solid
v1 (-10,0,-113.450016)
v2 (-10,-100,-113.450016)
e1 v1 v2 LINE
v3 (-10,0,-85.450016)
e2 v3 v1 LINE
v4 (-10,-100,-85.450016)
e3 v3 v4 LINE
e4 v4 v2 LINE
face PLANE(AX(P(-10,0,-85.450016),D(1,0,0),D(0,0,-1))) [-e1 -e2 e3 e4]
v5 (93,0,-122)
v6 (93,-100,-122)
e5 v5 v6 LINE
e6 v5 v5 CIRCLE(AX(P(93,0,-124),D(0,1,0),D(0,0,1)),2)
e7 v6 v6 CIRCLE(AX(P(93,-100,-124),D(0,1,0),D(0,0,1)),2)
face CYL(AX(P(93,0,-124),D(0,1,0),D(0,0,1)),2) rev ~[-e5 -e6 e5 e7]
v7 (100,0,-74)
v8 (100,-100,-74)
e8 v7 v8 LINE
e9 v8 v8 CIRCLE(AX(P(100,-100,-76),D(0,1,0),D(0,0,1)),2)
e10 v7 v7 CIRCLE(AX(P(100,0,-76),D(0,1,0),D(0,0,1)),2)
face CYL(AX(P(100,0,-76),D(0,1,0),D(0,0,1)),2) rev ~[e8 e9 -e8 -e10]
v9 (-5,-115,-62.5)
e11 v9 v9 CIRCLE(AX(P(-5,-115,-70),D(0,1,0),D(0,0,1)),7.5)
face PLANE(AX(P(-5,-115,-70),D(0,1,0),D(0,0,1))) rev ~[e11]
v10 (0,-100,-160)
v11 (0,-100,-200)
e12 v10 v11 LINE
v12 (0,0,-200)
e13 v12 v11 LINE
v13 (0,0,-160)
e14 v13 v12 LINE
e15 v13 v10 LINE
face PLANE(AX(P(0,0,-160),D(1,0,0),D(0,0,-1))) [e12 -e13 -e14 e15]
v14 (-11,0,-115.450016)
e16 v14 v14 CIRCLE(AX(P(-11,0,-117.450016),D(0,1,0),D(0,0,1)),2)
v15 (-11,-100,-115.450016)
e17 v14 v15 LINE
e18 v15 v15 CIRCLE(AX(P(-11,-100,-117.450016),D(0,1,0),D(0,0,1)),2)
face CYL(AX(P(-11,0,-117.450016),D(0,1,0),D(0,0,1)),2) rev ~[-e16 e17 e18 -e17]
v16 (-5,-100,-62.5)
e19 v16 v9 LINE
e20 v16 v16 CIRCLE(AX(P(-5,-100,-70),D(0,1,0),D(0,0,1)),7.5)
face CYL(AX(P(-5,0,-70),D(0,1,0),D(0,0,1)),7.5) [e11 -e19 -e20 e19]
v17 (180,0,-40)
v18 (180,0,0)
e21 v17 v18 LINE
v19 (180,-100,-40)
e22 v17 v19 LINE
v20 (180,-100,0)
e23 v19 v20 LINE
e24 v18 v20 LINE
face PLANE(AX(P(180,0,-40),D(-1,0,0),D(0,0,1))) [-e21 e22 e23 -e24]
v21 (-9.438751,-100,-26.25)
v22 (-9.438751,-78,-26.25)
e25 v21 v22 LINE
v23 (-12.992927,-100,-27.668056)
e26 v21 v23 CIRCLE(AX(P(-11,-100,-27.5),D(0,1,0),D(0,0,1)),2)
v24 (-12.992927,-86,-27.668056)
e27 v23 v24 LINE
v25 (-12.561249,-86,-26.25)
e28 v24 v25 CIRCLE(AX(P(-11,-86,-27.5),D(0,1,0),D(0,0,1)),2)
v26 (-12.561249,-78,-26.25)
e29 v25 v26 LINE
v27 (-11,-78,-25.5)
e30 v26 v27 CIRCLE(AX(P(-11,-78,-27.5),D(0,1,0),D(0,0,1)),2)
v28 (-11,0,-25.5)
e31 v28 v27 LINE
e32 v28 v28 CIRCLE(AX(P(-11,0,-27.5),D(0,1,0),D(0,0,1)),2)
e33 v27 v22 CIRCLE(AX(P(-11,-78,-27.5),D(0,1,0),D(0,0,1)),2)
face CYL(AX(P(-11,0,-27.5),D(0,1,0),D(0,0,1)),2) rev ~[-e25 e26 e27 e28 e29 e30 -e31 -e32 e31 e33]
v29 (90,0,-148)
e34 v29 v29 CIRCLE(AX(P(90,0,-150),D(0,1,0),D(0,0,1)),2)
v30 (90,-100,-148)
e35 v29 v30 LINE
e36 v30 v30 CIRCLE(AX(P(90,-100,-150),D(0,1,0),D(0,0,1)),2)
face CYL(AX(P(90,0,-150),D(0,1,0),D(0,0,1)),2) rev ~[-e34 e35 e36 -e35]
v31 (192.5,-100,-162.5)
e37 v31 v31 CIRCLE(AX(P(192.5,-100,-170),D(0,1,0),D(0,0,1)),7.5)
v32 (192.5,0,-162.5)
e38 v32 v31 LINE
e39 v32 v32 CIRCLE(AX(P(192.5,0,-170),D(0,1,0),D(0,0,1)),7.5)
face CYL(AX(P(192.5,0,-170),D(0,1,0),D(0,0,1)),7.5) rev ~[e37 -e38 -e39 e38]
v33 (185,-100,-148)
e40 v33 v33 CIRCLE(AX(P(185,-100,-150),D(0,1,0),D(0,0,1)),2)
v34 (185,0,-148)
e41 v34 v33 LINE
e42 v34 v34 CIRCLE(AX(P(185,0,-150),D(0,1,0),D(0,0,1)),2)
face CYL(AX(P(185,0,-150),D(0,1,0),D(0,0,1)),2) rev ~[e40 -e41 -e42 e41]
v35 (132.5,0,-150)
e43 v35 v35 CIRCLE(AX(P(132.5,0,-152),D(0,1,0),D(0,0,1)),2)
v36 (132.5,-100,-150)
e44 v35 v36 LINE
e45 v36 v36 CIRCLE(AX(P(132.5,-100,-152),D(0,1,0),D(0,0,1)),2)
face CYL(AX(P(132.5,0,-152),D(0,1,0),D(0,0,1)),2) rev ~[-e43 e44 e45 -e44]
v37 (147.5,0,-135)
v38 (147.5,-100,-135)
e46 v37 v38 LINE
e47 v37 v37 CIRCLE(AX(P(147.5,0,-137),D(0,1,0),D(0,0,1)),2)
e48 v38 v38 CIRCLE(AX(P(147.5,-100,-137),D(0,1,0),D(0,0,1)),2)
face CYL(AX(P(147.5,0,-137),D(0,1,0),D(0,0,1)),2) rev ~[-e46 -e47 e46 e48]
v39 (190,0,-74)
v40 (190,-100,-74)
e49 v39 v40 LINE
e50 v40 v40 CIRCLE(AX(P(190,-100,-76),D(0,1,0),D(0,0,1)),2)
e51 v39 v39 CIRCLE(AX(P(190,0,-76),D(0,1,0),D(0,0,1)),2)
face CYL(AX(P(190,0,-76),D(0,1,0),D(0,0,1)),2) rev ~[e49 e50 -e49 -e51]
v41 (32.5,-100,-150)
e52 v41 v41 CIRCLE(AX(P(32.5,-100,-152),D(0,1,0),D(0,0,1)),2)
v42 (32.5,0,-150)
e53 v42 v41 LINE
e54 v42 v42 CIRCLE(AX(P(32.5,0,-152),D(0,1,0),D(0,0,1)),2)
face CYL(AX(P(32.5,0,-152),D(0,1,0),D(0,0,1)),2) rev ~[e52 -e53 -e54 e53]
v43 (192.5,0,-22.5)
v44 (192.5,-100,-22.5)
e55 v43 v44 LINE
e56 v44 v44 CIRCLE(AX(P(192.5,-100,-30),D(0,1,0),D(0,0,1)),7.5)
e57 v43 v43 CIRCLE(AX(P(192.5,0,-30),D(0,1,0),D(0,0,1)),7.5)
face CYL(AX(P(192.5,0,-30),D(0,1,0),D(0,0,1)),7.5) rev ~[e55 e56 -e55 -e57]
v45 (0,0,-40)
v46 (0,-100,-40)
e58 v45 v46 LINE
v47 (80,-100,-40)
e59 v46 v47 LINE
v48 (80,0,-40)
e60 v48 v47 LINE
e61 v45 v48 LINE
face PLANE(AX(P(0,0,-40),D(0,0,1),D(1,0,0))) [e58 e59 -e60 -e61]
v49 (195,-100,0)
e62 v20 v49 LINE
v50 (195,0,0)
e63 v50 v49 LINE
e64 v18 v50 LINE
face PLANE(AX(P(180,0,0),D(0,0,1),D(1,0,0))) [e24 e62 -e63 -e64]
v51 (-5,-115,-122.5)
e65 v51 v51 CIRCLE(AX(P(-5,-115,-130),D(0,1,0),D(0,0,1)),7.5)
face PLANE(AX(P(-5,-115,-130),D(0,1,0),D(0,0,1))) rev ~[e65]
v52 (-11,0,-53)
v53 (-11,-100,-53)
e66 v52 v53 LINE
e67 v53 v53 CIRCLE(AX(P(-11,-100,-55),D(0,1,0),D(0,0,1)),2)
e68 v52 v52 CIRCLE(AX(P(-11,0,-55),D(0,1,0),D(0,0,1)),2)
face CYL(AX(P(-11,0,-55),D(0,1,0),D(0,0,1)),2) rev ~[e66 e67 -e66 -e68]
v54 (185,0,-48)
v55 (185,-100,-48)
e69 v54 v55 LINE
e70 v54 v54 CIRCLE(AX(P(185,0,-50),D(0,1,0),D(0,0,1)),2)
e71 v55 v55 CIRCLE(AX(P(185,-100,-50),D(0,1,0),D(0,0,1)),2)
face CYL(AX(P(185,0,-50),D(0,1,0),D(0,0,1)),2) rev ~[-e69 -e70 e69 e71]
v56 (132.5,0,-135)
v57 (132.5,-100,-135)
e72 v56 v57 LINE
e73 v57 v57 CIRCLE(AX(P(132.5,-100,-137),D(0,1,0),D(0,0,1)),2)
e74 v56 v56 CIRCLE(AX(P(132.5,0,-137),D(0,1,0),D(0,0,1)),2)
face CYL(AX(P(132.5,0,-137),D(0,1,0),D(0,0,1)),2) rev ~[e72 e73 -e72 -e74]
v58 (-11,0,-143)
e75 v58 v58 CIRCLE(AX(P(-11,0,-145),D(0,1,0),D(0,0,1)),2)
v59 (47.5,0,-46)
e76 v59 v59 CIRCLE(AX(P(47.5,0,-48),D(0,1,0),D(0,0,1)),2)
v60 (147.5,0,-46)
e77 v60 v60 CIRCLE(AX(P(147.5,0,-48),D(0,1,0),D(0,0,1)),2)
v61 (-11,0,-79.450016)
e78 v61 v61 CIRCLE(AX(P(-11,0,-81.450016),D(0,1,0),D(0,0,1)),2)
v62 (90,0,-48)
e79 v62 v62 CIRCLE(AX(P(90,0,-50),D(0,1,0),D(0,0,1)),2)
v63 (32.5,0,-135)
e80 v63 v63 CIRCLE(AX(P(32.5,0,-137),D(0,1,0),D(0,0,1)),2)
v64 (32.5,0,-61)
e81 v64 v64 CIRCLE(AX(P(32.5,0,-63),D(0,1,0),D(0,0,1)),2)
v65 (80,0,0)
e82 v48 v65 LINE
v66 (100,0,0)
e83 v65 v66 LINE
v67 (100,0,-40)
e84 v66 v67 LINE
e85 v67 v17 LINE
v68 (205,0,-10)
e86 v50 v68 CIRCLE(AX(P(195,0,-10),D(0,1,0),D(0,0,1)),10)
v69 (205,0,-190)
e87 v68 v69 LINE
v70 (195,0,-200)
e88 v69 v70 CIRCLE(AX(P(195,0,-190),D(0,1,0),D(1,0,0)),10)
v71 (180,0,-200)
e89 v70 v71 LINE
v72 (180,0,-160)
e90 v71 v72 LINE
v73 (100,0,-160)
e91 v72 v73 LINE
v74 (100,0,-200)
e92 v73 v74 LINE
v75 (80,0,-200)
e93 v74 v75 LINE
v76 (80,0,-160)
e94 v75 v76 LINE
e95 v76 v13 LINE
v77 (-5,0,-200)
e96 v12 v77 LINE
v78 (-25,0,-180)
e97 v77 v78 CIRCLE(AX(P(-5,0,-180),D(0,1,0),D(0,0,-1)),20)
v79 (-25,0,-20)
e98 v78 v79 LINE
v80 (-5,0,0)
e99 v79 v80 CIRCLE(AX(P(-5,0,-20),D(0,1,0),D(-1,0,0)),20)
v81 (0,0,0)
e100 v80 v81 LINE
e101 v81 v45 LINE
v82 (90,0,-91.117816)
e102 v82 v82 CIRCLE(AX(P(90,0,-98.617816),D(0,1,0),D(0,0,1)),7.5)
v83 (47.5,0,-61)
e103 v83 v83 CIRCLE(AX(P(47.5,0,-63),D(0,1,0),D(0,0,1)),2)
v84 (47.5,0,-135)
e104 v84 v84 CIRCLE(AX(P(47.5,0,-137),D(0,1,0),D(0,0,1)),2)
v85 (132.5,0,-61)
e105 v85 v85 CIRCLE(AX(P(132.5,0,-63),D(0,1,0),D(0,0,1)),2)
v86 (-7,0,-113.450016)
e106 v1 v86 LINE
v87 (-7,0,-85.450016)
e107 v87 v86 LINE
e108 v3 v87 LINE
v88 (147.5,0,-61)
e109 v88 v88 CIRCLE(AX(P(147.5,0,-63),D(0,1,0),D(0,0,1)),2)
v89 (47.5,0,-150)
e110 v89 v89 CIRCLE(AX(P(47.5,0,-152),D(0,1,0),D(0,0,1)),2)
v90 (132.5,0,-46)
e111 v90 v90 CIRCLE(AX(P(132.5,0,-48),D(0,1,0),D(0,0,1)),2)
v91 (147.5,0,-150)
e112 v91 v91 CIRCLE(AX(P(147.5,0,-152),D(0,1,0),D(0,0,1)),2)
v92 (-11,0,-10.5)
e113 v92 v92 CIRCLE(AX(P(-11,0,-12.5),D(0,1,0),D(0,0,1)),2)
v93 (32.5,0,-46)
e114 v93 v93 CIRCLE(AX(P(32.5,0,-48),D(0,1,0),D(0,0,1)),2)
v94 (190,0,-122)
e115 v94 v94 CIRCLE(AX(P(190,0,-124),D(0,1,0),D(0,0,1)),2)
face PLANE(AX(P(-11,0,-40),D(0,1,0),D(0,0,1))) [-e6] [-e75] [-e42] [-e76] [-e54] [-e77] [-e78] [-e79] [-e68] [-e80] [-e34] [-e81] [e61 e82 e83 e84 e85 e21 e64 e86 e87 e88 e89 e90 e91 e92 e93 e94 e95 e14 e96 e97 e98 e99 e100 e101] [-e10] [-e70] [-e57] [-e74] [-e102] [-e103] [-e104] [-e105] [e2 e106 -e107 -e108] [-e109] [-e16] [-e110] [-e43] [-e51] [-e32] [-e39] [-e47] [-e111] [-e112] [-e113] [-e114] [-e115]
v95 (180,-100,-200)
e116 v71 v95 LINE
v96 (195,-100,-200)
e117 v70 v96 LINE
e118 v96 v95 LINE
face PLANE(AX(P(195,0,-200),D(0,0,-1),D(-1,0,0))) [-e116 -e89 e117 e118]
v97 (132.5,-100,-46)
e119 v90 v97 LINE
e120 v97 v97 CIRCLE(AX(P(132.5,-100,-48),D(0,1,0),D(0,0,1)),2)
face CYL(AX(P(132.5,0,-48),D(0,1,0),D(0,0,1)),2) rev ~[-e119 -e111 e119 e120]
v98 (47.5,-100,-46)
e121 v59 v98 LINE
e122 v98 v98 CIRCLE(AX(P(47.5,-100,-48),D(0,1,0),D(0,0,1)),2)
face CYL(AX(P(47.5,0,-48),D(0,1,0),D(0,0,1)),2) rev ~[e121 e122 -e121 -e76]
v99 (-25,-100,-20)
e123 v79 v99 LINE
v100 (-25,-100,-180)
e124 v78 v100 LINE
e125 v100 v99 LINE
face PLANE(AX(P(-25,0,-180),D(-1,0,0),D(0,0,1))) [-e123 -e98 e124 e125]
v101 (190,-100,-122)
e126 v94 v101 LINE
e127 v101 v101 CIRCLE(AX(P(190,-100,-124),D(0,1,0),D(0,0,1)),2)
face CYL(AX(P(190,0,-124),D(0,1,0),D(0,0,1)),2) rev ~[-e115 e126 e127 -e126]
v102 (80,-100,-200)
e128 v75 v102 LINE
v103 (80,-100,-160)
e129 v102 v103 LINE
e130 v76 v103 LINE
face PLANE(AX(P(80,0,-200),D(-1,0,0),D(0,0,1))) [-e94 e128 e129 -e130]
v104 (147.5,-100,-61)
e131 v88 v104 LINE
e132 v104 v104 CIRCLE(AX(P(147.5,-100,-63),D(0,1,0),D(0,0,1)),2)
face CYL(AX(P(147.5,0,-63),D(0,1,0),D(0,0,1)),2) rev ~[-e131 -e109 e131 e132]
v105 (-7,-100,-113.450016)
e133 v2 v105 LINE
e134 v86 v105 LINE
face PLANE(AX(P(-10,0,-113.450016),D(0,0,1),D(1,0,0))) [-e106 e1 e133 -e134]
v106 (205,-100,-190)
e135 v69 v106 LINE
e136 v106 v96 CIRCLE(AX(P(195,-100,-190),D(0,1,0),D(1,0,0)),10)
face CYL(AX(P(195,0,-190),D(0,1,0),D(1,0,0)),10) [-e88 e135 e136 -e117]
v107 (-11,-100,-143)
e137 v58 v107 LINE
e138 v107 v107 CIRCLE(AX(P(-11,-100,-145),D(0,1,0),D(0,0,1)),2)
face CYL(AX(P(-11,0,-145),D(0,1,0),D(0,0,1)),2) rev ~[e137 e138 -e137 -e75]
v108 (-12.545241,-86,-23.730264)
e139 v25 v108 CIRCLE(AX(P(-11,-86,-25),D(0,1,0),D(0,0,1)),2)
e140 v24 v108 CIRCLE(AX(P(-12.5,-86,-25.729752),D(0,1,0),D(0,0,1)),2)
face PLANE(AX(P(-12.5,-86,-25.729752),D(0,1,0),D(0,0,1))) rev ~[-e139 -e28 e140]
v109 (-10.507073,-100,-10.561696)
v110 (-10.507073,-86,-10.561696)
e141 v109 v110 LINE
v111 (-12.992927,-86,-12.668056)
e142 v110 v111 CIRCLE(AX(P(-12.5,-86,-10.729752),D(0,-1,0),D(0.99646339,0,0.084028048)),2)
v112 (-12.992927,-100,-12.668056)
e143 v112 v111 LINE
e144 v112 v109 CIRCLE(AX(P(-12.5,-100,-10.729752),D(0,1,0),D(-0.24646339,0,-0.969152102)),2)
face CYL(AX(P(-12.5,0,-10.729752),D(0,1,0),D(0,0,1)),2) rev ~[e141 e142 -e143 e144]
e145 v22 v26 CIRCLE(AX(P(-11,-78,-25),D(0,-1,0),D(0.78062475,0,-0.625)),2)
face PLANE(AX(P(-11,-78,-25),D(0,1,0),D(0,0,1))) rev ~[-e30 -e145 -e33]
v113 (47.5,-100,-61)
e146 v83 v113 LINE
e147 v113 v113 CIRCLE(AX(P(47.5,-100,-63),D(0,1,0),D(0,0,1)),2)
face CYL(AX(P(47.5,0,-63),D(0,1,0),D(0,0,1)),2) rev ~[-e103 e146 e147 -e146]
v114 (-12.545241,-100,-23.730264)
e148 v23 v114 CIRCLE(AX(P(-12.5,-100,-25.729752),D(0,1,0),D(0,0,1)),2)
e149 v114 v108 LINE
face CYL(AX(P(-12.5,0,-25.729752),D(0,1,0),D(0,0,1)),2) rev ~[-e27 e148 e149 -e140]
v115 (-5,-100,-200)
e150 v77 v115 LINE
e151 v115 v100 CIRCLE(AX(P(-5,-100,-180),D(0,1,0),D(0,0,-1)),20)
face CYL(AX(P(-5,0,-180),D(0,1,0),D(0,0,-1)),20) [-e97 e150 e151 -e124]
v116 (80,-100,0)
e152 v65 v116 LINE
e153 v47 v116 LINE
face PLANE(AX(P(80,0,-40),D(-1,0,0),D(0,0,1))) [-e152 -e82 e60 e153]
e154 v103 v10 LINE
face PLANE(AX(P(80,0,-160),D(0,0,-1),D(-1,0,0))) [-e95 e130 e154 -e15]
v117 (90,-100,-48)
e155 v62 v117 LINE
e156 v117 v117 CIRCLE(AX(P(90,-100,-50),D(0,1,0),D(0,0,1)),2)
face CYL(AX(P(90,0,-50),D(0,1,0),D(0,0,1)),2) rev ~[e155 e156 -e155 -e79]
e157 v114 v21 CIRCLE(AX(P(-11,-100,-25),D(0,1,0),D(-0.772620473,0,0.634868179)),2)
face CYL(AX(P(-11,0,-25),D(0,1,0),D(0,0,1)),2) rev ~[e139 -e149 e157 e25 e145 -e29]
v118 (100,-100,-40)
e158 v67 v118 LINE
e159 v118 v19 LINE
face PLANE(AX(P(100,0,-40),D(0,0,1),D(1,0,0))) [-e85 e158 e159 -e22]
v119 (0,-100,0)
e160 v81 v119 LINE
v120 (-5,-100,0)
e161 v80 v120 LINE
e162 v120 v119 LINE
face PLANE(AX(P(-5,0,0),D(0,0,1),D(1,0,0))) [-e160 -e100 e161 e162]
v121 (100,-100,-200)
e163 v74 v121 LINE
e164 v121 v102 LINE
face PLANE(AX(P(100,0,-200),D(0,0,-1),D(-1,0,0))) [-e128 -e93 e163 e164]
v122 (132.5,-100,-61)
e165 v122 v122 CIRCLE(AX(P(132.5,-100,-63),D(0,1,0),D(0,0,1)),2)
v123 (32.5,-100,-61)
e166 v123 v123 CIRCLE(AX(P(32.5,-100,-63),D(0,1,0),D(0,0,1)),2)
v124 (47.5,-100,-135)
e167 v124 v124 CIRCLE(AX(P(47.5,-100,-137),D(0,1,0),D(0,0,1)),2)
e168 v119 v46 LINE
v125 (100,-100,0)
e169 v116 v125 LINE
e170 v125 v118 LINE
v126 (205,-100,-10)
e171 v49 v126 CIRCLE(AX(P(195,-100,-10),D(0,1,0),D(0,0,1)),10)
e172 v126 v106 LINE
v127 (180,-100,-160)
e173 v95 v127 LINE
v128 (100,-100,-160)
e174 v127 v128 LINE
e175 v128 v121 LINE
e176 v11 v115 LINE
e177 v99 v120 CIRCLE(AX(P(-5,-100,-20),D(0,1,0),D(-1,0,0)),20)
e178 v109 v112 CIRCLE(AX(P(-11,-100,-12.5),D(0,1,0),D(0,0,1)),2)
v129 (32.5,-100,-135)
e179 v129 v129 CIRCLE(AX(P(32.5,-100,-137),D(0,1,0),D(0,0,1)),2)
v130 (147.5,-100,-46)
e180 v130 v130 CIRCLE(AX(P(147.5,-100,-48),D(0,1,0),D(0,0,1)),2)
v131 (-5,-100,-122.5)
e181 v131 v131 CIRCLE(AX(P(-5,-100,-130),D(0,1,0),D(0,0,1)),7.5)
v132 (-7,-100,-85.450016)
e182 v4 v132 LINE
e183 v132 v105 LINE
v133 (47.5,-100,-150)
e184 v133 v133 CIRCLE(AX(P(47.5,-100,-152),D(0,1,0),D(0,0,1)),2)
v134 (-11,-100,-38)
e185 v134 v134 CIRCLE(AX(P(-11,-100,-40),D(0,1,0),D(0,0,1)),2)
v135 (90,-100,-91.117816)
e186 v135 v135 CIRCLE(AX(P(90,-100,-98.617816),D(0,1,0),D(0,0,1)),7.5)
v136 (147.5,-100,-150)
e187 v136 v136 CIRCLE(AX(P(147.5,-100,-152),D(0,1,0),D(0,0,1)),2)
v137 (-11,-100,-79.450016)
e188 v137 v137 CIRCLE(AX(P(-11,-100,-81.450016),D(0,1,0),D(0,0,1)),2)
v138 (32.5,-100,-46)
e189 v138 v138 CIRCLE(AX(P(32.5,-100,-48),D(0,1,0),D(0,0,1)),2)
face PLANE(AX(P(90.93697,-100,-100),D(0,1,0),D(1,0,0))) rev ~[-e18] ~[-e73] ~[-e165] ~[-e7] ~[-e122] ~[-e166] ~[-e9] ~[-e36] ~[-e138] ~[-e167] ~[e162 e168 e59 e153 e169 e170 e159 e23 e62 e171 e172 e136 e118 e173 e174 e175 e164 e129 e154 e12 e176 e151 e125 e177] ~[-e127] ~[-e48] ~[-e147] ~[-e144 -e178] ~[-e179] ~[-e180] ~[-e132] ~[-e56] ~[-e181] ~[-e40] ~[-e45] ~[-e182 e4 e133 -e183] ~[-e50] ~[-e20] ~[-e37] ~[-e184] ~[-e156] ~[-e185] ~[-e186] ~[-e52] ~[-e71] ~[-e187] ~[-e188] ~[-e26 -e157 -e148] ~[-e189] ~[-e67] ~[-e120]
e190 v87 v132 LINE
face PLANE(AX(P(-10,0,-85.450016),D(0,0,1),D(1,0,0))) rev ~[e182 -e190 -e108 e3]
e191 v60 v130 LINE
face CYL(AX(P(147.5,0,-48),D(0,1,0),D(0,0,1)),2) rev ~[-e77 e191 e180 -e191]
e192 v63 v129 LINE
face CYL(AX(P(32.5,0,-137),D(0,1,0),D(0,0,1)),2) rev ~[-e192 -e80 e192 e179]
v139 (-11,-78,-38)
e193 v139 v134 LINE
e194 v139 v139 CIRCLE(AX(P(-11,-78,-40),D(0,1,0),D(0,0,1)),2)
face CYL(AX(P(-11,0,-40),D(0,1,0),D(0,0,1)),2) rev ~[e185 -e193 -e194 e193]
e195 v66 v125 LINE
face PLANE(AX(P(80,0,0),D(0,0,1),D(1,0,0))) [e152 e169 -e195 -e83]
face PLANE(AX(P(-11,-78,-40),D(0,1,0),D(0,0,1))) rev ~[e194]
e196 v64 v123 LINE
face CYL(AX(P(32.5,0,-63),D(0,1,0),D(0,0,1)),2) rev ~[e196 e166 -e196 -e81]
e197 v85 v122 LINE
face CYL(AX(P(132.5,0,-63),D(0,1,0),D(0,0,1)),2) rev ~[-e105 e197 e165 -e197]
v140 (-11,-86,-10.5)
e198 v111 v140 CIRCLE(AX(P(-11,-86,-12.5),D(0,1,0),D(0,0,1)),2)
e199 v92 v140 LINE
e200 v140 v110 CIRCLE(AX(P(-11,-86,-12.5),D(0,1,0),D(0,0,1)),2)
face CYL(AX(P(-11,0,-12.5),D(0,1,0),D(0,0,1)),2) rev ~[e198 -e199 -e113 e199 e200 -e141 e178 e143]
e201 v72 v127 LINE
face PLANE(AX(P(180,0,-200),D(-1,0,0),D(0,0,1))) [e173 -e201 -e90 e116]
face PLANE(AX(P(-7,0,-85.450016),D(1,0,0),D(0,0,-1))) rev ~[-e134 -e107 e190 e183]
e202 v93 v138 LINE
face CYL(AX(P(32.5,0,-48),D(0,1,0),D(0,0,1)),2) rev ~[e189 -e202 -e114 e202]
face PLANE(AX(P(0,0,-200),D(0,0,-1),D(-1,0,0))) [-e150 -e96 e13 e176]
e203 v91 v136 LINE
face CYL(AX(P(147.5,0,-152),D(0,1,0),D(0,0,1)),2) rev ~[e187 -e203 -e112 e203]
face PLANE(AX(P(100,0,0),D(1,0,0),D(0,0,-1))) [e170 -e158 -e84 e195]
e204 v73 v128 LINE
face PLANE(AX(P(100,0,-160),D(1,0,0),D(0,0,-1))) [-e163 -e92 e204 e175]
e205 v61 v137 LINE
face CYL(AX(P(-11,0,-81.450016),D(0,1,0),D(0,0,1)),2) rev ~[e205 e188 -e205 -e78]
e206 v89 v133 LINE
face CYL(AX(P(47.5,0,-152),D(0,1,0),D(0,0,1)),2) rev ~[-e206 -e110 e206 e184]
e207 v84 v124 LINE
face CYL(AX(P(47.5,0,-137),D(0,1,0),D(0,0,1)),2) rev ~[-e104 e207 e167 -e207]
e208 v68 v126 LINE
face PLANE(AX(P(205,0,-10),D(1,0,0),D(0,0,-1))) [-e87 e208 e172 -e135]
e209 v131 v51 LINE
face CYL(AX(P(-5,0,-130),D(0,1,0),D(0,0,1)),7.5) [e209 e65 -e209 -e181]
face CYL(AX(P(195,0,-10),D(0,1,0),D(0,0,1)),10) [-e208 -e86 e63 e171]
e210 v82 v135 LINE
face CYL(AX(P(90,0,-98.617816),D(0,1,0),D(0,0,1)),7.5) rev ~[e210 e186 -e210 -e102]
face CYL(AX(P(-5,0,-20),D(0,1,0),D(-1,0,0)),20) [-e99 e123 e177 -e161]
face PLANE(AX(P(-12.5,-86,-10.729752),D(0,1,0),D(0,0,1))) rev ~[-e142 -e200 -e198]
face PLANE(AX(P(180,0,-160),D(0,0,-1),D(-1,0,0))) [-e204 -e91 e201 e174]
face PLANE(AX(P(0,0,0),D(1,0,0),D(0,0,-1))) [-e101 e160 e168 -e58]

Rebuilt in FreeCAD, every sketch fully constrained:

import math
import FreeCAD as App
import Part
import Sketcher

V = App.Vector
Q = App.Units.Quantity

doc = App.newDocument("Part")
body = doc.addObject("PartDesign::Body", "Body")

# Sketch on XZ plane
sketch1 = body.newObject("Sketcher::SketchObject", "Sketch")
sketch1.AttachmentSupport = (doc.getObject("XZ_Plane"), [""])
sketch1.MapMode = "FlatFace"
sketch1.addGeometry(Part.LineSegment(V(0, 0, 0), V(0, -40, 0)), False)
sketch1.addGeometry(Part.LineSegment(V(0, -40, 0), V(80, -40, 0)), False)
sketch1.addGeometry(Part.LineSegment(V(80, -40, 0), V(80, 0, 0)), False)
sketch1.addGeometry(Part.LineSegment(V(80, 0, 0), V(100, 0, 0)), False)
sketch1.addGeometry(Part.LineSegment(V(100, 0, 0), V(100, -40, 0)), False)
sketch1.addGeometry(Part.LineSegment(V(100, -40, 0), V(180, -40, 0)), False)
sketch1.addGeometry(Part.LineSegment(V(180, -40, 0), V(180, 0, 0)), False)
sketch1.addGeometry(Part.LineSegment(V(180, 0, 0), V(195, 0, 0)), False)
sketch1.addGeometry(Part.ArcOfCircle(Part.Circle(V(195, -10, 0), V(0, 0, 1), 10), math.radians(0), math.radians(90)), False)
sketch1.addGeometry(Part.LineSegment(V(205, -10, 0), V(205, -190, 0)), False)
sketch1.addGeometry(Part.ArcOfCircle(Part.Circle(V(195, -190, 0), V(0, 0, 1), 10), math.radians(-90), math.radians(0)), False)
sketch1.addGeometry(Part.LineSegment(V(195, -200, 0), V(180, -200, 0)), False)
sketch1.addGeometry(Part.LineSegment(V(180, -200, 0), V(180, -160, 0)), False)
sketch1.addGeometry(Part.LineSegment(V(180, -160, 0), V(100, -160, 0)), False)
sketch1.addGeometry(Part.LineSegment(V(100, -160, 0), V(100, -200, 0)), False)
sketch1.addGeometry(Part.LineSegment(V(100, -200, 0), V(80, -200, 0)), False)
sketch1.addGeometry(Part.LineSegment(V(80, -200, 0), V(80, -160, 0)), False)
sketch1.addGeometry(Part.LineSegment(V(80, -160, 0), V(0, -160, 0)), False)
sketch1.addGeometry(Part.LineSegment(V(0, -160, 0), V(0, -200, 0)), False)
sketch1.addGeometry(Part.LineSegment(V(0, -200, 0), V(-5, -200, 0)), False)
sketch1.addGeometry(Part.ArcOfCircle(Part.Circle(V(-5, -180, 0), V(0, 0, 1), 20), math.radians(180), math.radians(270)), False)
sketch1.addGeometry(Part.LineSegment(V(-25, -180, 0), V(-25, -20, 0)), False)
sketch1.addGeometry(Part.ArcOfCircle(Part.Circle(V(-5, -20, 0), V(0, 0, 1), 20), math.radians(90), math.radians(180)), False)
sketch1.addGeometry(Part.LineSegment(V(-5, 0, 0), V(0, 0, 0)), False)
sketch1.addGeometry(Part.Circle(V(32.5, -48, 0), V(0, 0, 1), 2), False)
sketch1.addGeometry(Part.Circle(V(47.5, -48, 0), V(0, 0, 1), 2), False)
sketch1.addGeometry(Part.Circle(V(90, -50, 0), V(0, 0, 1), 2), False)
sketch1.addGeometry(Part.Circle(V(-5, -70, 0), V(0, 0, 1), 7.5), False)
sketch1.addGeometry(Part.Circle(V(32.5, -63, 0), V(0, 0, 1), 2), False)
sketch1.addGeometry(Part.LineSegment(V(-7, -85.5, 0), V(-10, -85.5, 0)), False)
sketch1.addGeometry(Part.LineSegment(V(-10, -85.5, 0), V(-10, -113.5, 0)), False)
sketch1.addGeometry(Part.LineSegment(V(-10, -113.5, 0), V(-7, -113.5, 0)), False)
sketch1.addGeometry(Part.LineSegment(V(-7, -113.5, 0), V(-7, -85.5, 0)), False)
sketch1.addGeometry(Part.Circle(V(47.5, -63, 0), V(0, 0, 1), 2), False)
sketch1.addGeometry(Part.Circle(V(90, -98.6, 0), V(0, 0, 1), 7.5), False)
sketch1.addGeometry(Part.Circle(V(132.5, -48, 0), V(0, 0, 1), 2), False)
sketch1.addGeometry(Part.Circle(V(192.5, -30, 0), V(0, 0, 1), 7.5), False)
sketch1.addGeometry(Part.Circle(V(147.5, -48, 0), V(0, 0, 1), 2), False)
sketch1.addGeometry(Part.Circle(V(185, -50, 0), V(0, 0, 1), 2), False)
sketch1.addGeometry(Part.Circle(V(132.5, -63, 0), V(0, 0, 1), 2), False)
sketch1.addGeometry(Part.Circle(V(147.5, -63, 0), V(0, 0, 1), 2), False)
sketch1.addGeometry(Part.Circle(V(-5, -130, 0), V(0, 0, 1), 7.5), False)
sketch1.addGeometry(Part.Circle(V(32.5, -137, 0), V(0, 0, 1), 2), False)
sketch1.addGeometry(Part.Circle(V(47.5, -137, 0), V(0, 0, 1), 2), False)
sketch1.addGeometry(Part.Circle(V(32.5, -152, 0), V(0, 0, 1), 2), False)
sketch1.addGeometry(Part.Circle(V(47.5, -152, 0), V(0, 0, 1), 2), False)
sketch1.addGeometry(Part.Circle(V(90, -150, 0), V(0, 0, 1), 2), False)
sketch1.addGeometry(Part.Circle(V(132.5, -137, 0), V(0, 0, 1), 2), False)
sketch1.addGeometry(Part.Circle(V(147.5, -137, 0), V(0, 0, 1), 2), False)
sketch1.addGeometry(Part.Circle(V(132.5, -152, 0), V(0, 0, 1), 2), False)
sketch1.addGeometry(Part.Circle(V(147.5, -152, 0), V(0, 0, 1), 2), False)
sketch1.addGeometry(Part.Circle(V(185, -150, 0), V(0, 0, 1), 2), False)
sketch1.addGeometry(Part.Circle(V(192.5, -170, 0), V(0, 0, 1), 7.5), False)
sketch1.addConstraint(Sketcher.Constraint("Coincident", 0, 2, 1, 1))
sketch1.addConstraint(Sketcher.Constraint("Coincident", 1, 2, 2, 1))
sketch1.addConstraint(Sketcher.Constraint("Coincident", 2, 2, 3, 1))
sketch1.addConstraint(Sketcher.Constraint("Coincident", 3, 2, 4, 1))
sketch1.addConstraint(Sketcher.Constraint("Coincident", 4, 2, 5, 1))
sketch1.addConstraint(Sketcher.Constraint("Coincident", 5, 2, 6, 1))
sketch1.addConstraint(Sketcher.Constraint("Coincident", 6, 2, 7, 1))
sketch1.addConstraint(Sketcher.Constraint("Tangent", 7, 2, 8, 2))
sketch1.addConstraint(Sketcher.Constraint("Tangent", 8, 1, 9, 1))
sketch1.addConstraint(Sketcher.Constraint("Tangent", 9, 2, 10, 2))
sketch1.addConstraint(Sketcher.Constraint("Tangent", 10, 1, 11, 1))
sketch1.addConstraint(Sketcher.Constraint("Coincident", 11, 2, 12, 1))
sketch1.addConstraint(Sketcher.Constraint("Coincident", 12, 2, 13, 1))
sketch1.addConstraint(Sketcher.Constraint("Coincident", 13, 2, 14, 1))
sketch1.addConstraint(Sketcher.Constraint("Coincident", 14, 2, 15, 1))
sketch1.addConstraint(Sketcher.Constraint("Coincident", 15, 2, 16, 1))
sketch1.addConstraint(Sketcher.Constraint("Coincident", 16, 2, 17, 1))
sketch1.addConstraint(Sketcher.Constraint("Coincident", 17, 2, 18, 1))
sketch1.addConstraint(Sketcher.Constraint("Coincident", 18, 2, 19, 1))
sketch1.addConstraint(Sketcher.Constraint("Tangent", 19, 2, 20, 2))
sketch1.addConstraint(Sketcher.Constraint("Tangent", 20, 1, 21, 1))
sketch1.addConstraint(Sketcher.Constraint("Tangent", 21, 2, 22, 2))
sketch1.addConstraint(Sketcher.Constraint("Tangent", 22, 1, 23, 1))
sketch1.addConstraint(Sketcher.Constraint("Coincident", 23, 2, 0, 1))
sketch1.addConstraint(Sketcher.Constraint("Coincident", 29, 2, 30, 1))
sketch1.addConstraint(Sketcher.Constraint("Coincident", 30, 2, 31, 1))
sketch1.addConstraint(Sketcher.Constraint("Coincident", 31, 2, 32, 1))
sketch1.addConstraint(Sketcher.Constraint("Coincident", 32, 2, 29, 1))
sketch1.addConstraint(Sketcher.Constraint("Vertical", 0))
sketch1.addConstraint(Sketcher.Constraint("Horizontal", 1))
sketch1.addConstraint(Sketcher.Constraint("Vertical", 2))
sketch1.addConstraint(Sketcher.Constraint("Horizontal", 3))
sketch1.addConstraint(Sketcher.Constraint("Vertical", 4))
sketch1.addConstraint(Sketcher.Constraint("Horizontal", 5))
sketch1.addConstraint(Sketcher.Constraint("Vertical", 6))
sketch1.addConstraint(Sketcher.Constraint("Horizontal", 7))
sketch1.addConstraint(Sketcher.Constraint("Vertical", 9))
sketch1.addConstraint(Sketcher.Constraint("Horizontal", 11))
sketch1.addConstraint(Sketcher.Constraint("Vertical", 12))
sketch1.addConstraint(Sketcher.Constraint("Horizontal", 13))
sketch1.addConstraint(Sketcher.Constraint("Vertical", 14))
sketch1.addConstraint(Sketcher.Constraint("Horizontal", 15))
sketch1.addConstraint(Sketcher.Constraint("Vertical", 16))
sketch1.addConstraint(Sketcher.Constraint("Horizontal", 17))
sketch1.addConstraint(Sketcher.Constraint("Vertical", 18))
sketch1.addConstraint(Sketcher.Constraint("Horizontal", 19))
sketch1.addConstraint(Sketcher.Constraint("Vertical", 21))
sketch1.addConstraint(Sketcher.Constraint("Horizontal", 23))
sketch1.addConstraint(Sketcher.Constraint("Horizontal", 29))
sketch1.addConstraint(Sketcher.Constraint("Vertical", 30))
sketch1.addConstraint(Sketcher.Constraint("Horizontal", 31))
sketch1.addConstraint(Sketcher.Constraint("Vertical", 32))
sketch1.addConstraint(Sketcher.Constraint("Coincident", 23, 2, -1, 1))
sketch1.addConstraint(Sketcher.Constraint("Equal", 8, 10))
sketch1.addConstraint(Sketcher.Constraint("Equal", 20, 22))
sketch1.addConstraint(Sketcher.Constraint("Equal", 24, 25))
sketch1.addConstraint(Sketcher.Constraint("Equal", 25, 26))
sketch1.addConstraint(Sketcher.Constraint("Equal", 26, 28))
sketch1.addConstraint(Sketcher.Constraint("Equal", 28, 33))
sketch1.addConstraint(Sketcher.Constraint("Equal", 27, 34))
sketch1.addConstraint(Sketcher.Constraint("Equal", 33, 35))
sketch1.addConstraint(Sketcher.Constraint("Equal", 34, 36))
sketch1.addConstraint(Sketcher.Constraint("Equal", 35, 37))
sketch1.addConstraint(Sketcher.Constraint("Equal", 37, 38))
sketch1.addConstraint(Sketcher.Constraint("Equal", 38, 39))
sketch1.addConstraint(Sketcher.Constraint("Equal", 39, 40))
sketch1.addConstraint(Sketcher.Constraint("Equal", 36, 41))
sketch1.addConstraint(Sketcher.Constraint("Equal", 40, 42))
sketch1.addConstraint(Sketcher.Constraint("Equal", 42, 43))
sketch1.addConstraint(Sketcher.Constraint("Equal", 43, 44))
sketch1.addConstraint(Sketcher.Constraint("Equal", 44, 45))
sketch1.addConstraint(Sketcher.Constraint("Equal", 45, 46))
sketch1.addConstraint(Sketcher.Constraint("Equal", 46, 47))
sketch1.addConstraint(Sketcher.Constraint("Equal", 47, 48))
sketch1.addConstraint(Sketcher.Constraint("Equal", 48, 49))
sketch1.addConstraint(Sketcher.Constraint("Equal", 49, 50))
sketch1.addConstraint(Sketcher.Constraint("Equal", 50, 51))
sketch1.addConstraint(Sketcher.Constraint("Equal", 41, 52))
sketch1.addConstraint(Sketcher.Constraint("PointOnObject", 2, 2, -1))
sketch1.addConstraint(Sketcher.Constraint("PointOnObject", 6, 2, -1))
sketch1.addConstraint(Sketcher.Constraint("PointOnObject", 17, 2, -2))
sketch1.addConstraint(Sketcher.Constraint("Horizontal", 24, 3, 25, 3))
sketch1.addConstraint(Sketcher.Constraint("Horizontal", 28, 3, 33, 3))
sketch1.addConstraint(Sketcher.Constraint("Horizontal", 25, 3, 35, 3))
sketch1.addConstraint(Sketcher.Constraint("Horizontal", 35, 3, 37, 3))
sketch1.addConstraint(Sketcher.Constraint("Horizontal", 26, 3, 38, 3))
sketch1.addConstraint(Sketcher.Constraint("Horizontal", 33, 3, 39, 3))
sketch1.addConstraint(Sketcher.Constraint("Horizontal", 39, 3, 40, 3))
sketch1.addConstraint(Sketcher.Constraint("Horizontal", 42, 3, 43, 3))
sketch1.addConstraint(Sketcher.Constraint("Horizontal", 44, 3, 45, 3))
sketch1.addConstraint(Sketcher.Constraint("Horizontal", 43, 3, 47, 3))
sketch1.addConstraint(Sketcher.Constraint("Horizontal", 47, 3, 48, 3))
sketch1.addConstraint(Sketcher.Constraint("Horizontal", 45, 3, 49, 3))
sketch1.addConstraint(Sketcher.Constraint("Horizontal", 49, 3, 50, 3))
sketch1.addConstraint(Sketcher.Constraint("Horizontal", 46, 3, 51, 3))
sketch1.addConstraint(Sketcher.Constraint("Horizontal", 1, 2, 4, 2))
sketch1.addConstraint(Sketcher.Constraint("Horizontal", 11, 2, 14, 2))
sketch1.addConstraint(Sketcher.Constraint("Horizontal", 13, 2, 16, 2))
sketch1.addConstraint(Sketcher.Constraint("Horizontal", 15, 2, 18, 2))
sketch1.addConstraint(Sketcher.Constraint("Vertical", 22, 3, 27, 3))
sketch1.addConstraint(Sketcher.Constraint("Vertical", 24, 3, 28, 3))
sketch1.addConstraint(Sketcher.Constraint("Vertical", 25, 3, 33, 3))
sketch1.addConstraint(Sketcher.Constraint("Vertical", 26, 3, 34, 3))
sketch1.addConstraint(Sketcher.Constraint("Vertical", 35, 3, 39, 3))
sketch1.addConstraint(Sketcher.Constraint("Vertical", 37, 3, 40, 3))
sketch1.addConstraint(Sketcher.Constraint("Vertical", 27, 3, 41, 3))
sketch1.addConstraint(Sketcher.Constraint("Vertical", 28, 3, 42, 3))
sketch1.addConstraint(Sketcher.Constraint("Vertical", 33, 3, 43, 3))
sketch1.addConstraint(Sketcher.Constraint("Vertical", 42, 3, 44, 3))
sketch1.addConstraint(Sketcher.Constraint("Vertical", 43, 3, 45, 3))
sketch1.addConstraint(Sketcher.Constraint("Vertical", 34, 3, 46, 3))
sketch1.addConstraint(Sketcher.Constraint("Vertical", 39, 3, 47, 3))
sketch1.addConstraint(Sketcher.Constraint("Vertical", 40, 3, 48, 3))
sketch1.addConstraint(Sketcher.Constraint("Vertical", 47, 3, 49, 3))
sketch1.addConstraint(Sketcher.Constraint("Vertical", 48, 3, 50, 3))
sketch1.addConstraint(Sketcher.Constraint("Vertical", 38, 3, 51, 3))
sketch1.addConstraint(Sketcher.Constraint("Vertical", 36, 3, 52, 3))
sketch1.addConstraint(Sketcher.Constraint("Vertical", 6, 2, 11, 2))
sketch1.addConstraint(Sketcher.Constraint("Vertical", 4, 2, 13, 2))
sketch1.addConstraint(Sketcher.Constraint("Vertical", 2, 2, 15, 2))
sketch1.addConstraint(Sketcher.Constraint("Equal", 1, 5))
sketch1.addConstraint(Sketcher.Constraint("Equal", 6, 12))
sketch1.addConstraint(Sketcher.Constraint("Diameter", 24, Q("4 mm")))
sketch1.addConstraint(Sketcher.Constraint("Diameter", 27, Q("15 mm")))
sketch1.addConstraint(Sketcher.Constraint("Radius", 8, Q("10 mm")))
sketch1.addConstraint(Sketcher.Constraint("Radius", 20, Q("20 mm")))
sketch1.addConstraint(Sketcher.Constraint("DistanceX", 1, 1, 1, 2, Q("80 mm")))
sketch1.addConstraint(Sketcher.Constraint("DistanceX", 3, 1, 3, 2, Q("20 mm")))
sketch1.addConstraint(Sketcher.Constraint("DistanceX", 7, 1, 7, 2, Q("15 mm")))
sketch1.addConstraint(Sketcher.Constraint("DistanceX", 19, 2, 19, 1, Q("5 mm")))
sketch1.addConstraint(Sketcher.Constraint("DistanceX", 29, 2, 29, 1, Q("3 mm")))
sketch1.addConstraint(Sketcher.Constraint("DistanceY", 0, 2, 0, 1, Q("40 mm")))
sketch1.addConstraint(Sketcher.Constraint("DistanceY", 9, 2, 9, 1, Q("180 mm")))
sketch1.addConstraint(Sketcher.Constraint("DistanceY", 30, 2, 30, 1, Q("28 mm")))
sketch1.addConstraint(Sketcher.Constraint("DistanceY", 24, 3, -1, 1, Q("48 mm")))
sketch1.addConstraint(Sketcher.Constraint("DistanceX", -1, 1, 26, 3, Q("90 mm")))
sketch1.addConstraint(Sketcher.Constraint("DistanceY", 26, 3, -1, 1, Q("50 mm")))
sketch1.addConstraint(Sketcher.Constraint("DistanceY", 27, 3, -1, 1, Q("70 mm")))
sketch1.addConstraint(Sketcher.Constraint("DistanceY", 28, 3, -1, 1, Q("63 mm")))
sketch1.addConstraint(Sketcher.Constraint("DistanceY", 36, 3, -1, 1, Q("30 mm")))
sketch1.addConstraint(Sketcher.Constraint("DistanceX", -1, 1, 38, 3, Q("185 mm")))
sketch1.addConstraint(Sketcher.Constraint("DistanceY", 41, 3, -1, 1, Q("130 mm")))
sketch1.addConstraint(Sketcher.Constraint("DistanceY", 42, 3, -1, 1, Q("137 mm")))
sketch1.addConstraint(Sketcher.Constraint("DistanceY", 44, 3, -1, 1, Q("152 mm")))
sketch1.addConstraint(Sketcher.Constraint("DistanceY", 46, 3, -1, 1, Q("150 mm")))
sketch1.addConstraint(Sketcher.Constraint("DistanceY", 52, 3, -1, 1, Q("170 mm")))
sketch1.addConstraint(Sketcher.Constraint("DistanceX", 29, 2, -1, 1, Q("10 mm")))
sketch1.addConstraint(Sketcher.Constraint("DistanceX", 24, 3, 25, 3, Q("15 mm")))
sketch1.addConstraint(Sketcher.Constraint("DistanceX", 25, 3, 35, 3, Q("85 mm")))
sketch1.addConstraint(Sketcher.Constraint("DistanceX", 35, 3, 36, 3, Q("60 mm")))
sketch1.addConstraint(Sketcher.Constraint("DistanceX", 35, 3, 37, 3, Q("15 mm")))
sketch1.addConstraint(Sketcher.Constraint("DistanceX", -1, 1, 24, 3, Q("32.5 mm")))
sketch1.addConstraint(Sketcher.Constraint("DistanceY", 34, 3, -1, 1, Q("98.617816 mm")))
sketch1.addConstraint(Sketcher.Constraint("DistanceY", 29, 2, -1, 1, Q("85.450016 mm")))
pad1 = body.newObject("PartDesign::Pad", "Pad")
pad1.Profile = sketch1
pad1.Length = 100

# Sketch on XZ plane
sketch2 = body.newObject("Sketcher::SketchObject", "Sketch001")
sketch2.AttachmentSupport = (doc.getObject("XZ_Plane"), [""])
sketch2.MapMode = "FlatFace"
sketch2.addGeometry(Part.Circle(V(-5, -130, 0), V(0, 0, 1), 8), False)
sketch2.addGeometry(Part.Circle(V(-5, -70, 0), V(0, 0, 1), 8), False)
sketch2.addConstraint(Sketcher.Constraint("Equal", 0, 1))
sketch2.addConstraint(Sketcher.Constraint("Vertical", 0, 3, 1, 3))
sketch2.addConstraint(Sketcher.Constraint("Diameter", 0, Q("15 mm")))
sketch2.addConstraint(Sketcher.Constraint("DistanceX", 0, 3, -1, 1, Q("5 mm")))
sketch2.addConstraint(Sketcher.Constraint("DistanceY", 0, 3, -1, 1, Q("130 mm")))
sketch2.addConstraint(Sketcher.Constraint("DistanceY", 1, 3, -1, 1, Q("70 mm")))
pad2 = body.newObject("PartDesign::Pad", "Pad001")
pad2.Profile = sketch2
pad2.Length = 115

# Sketch on XZ plane
sketch3 = body.newObject("Sketcher::SketchObject", "Sketch002")
sketch3.AttachmentSupport = (doc.getObject("XZ_Plane"), [""])
sketch3.MapMode = "FlatFace"
sketch3.addGeometry(Part.Circle(V(-11, -117.5, 0), V(0, 0, 1), 2), False)
sketch3.addGeometry(Part.Circle(V(-11, -81.5, 0), V(0, 0, 1), 2), False)
sketch3.addGeometry(Part.Circle(V(190, -76, 0), V(0, 0, 1), 2), False)
sketch3.addGeometry(Part.Circle(V(-12.5, -25.7, 0), V(0, 0, 1), 2), False)
sketch3.addGeometry(Part.Circle(V(-12.5, -10.7, 0), V(0, 0, 1), 2), False)
sketch3.addGeometry(Part.Circle(V(190, -124, 0), V(0, 0, 1), 2), False)
sketch3.addGeometry(Part.Circle(V(93, -124, 0), V(0, 0, 1), 2), False)
sketch3.addGeometry(Part.Circle(V(100, -76, 0), V(0, 0, 1), 2), False)
sketch3.addConstraint(Sketcher.Constraint("Equal", 0, 1))
sketch3.addConstraint(Sketcher.Constraint("Equal", 1, 2))
sketch3.addConstraint(Sketcher.Constraint("Equal", 2, 3))
sketch3.addConstraint(Sketcher.Constraint("Equal", 3, 4))
sketch3.addConstraint(Sketcher.Constraint("Equal", 4, 5))
sketch3.addConstraint(Sketcher.Constraint("Equal", 5, 6))
sketch3.addConstraint(Sketcher.Constraint("Equal", 6, 7))
sketch3.addConstraint(Sketcher.Constraint("Horizontal", 5, 3, 6, 3))
sketch3.addConstraint(Sketcher.Constraint("Horizontal", 2, 3, 7, 3))
sketch3.addConstraint(Sketcher.Constraint("Vertical", 0, 3, 1, 3))
sketch3.addConstraint(Sketcher.Constraint("Vertical", 3, 3, 4, 3))
sketch3.addConstraint(Sketcher.Constraint("Vertical", 2, 3, 5, 3))
sketch3.addConstraint(Sketcher.Constraint("Diameter", 0, Q("4 mm")))
sketch3.addConstraint(Sketcher.Constraint("DistanceX", 0, 3, -1, 1, Q("11 mm")))
sketch3.addConstraint(Sketcher.Constraint("DistanceX", -1, 1, 2, 3, Q("190 mm")))
sketch3.addConstraint(Sketcher.Constraint("DistanceY", 2, 3, -1, 1, Q("76 mm")))
sketch3.addConstraint(Sketcher.Constraint("DistanceY", 5, 3, -1, 1, Q("124 mm")))
sketch3.addConstraint(Sketcher.Constraint("DistanceX", -1, 1, 6, 3, Q("93 mm")))
sketch3.addConstraint(Sketcher.Constraint("DistanceX", -1, 1, 7, 3, Q("100 mm")))
sketch3.addConstraint(Sketcher.Constraint("DistanceY", 0, 3, 1, 3, Q("36 mm")))
sketch3.addConstraint(Sketcher.Constraint("DistanceY", 3, 3, 4, 3, Q("15 mm")))
sketch3.addConstraint(Sketcher.Constraint("DistanceX", 3, 3, -1, 1, Q("12.5 mm")))
sketch3.addConstraint(Sketcher.Constraint("DistanceY", 3, 3, -1, 1, Q("25.729752 mm")))
sketch3.addConstraint(Sketcher.Constraint("DistanceY", 0, 3, -1, 1, Q("117.450016 mm")))
pocket1 = body.newObject("PartDesign::Pocket", "Pocket")
pocket1.Profile = sketch3
pocket1.Length = 149
pocket1.Reversed = True

# Sketch on XZ plane
sketch4 = body.newObject("Sketcher::SketchObject", "Sketch003")
sketch4.AttachmentSupport = (doc.getObject("XZ_Plane"), [""])
sketch4.MapMode = "FlatFace"
sketch4.addGeometry(Part.Circle(V(-12.5, -25.7, 0), V(0, 0, 1), 2), False)
sketch4.addGeometry(Part.Circle(V(-12.5, -10.7, 0), V(0, 0, 1), 2), False)
sketch4.addConstraint(Sketcher.Constraint("Equal", 0, 1))
sketch4.addConstraint(Sketcher.Constraint("Vertical", 0, 3, 1, 3))
sketch4.addConstraint(Sketcher.Constraint("Diameter", 0, Q("4 mm")))
sketch4.addConstraint(Sketcher.Constraint("DistanceY", 0, 3, 1, 3, Q("15 mm")))
sketch4.addConstraint(Sketcher.Constraint("DistanceX", 0, 3, -1, 1, Q("12.5 mm")))
sketch4.addConstraint(Sketcher.Constraint("DistanceY", 0, 3, -1, 1, Q("25.729752 mm")))
pad3 = body.newObject("PartDesign::Pad", "Pad002")
pad3.Profile = sketch4
pad3.Length = 86

# Sketch on XZ plane
sketch5 = body.newObject("Sketcher::SketchObject", "Sketch004")
sketch5.AttachmentSupport = (doc.getObject("XZ_Plane"), [""])
sketch5.MapMode = "FlatFace"
sketch5.addGeometry(Part.Circle(V(-11, -40, 0), V(0, 0, 1), 2), False)
sketch5.addGeometry(Part.Circle(V(-11, -25, 0), V(0, 0, 1), 2), False)
sketch5.addConstraint(Sketcher.Constraint("Equal", 0, 1))
sketch5.addConstraint(Sketcher.Constraint("Vertical", 0, 3, 1, 3))
sketch5.addConstraint(Sketcher.Constraint("Diameter", 0, Q("4 mm")))
sketch5.addConstraint(Sketcher.Constraint("DistanceX", 0, 3, -1, 1, Q("11 mm")))
sketch5.addConstraint(Sketcher.Constraint("DistanceY", 0, 3, -1, 1, Q("40 mm")))
sketch5.addConstraint(Sketcher.Constraint("DistanceY", 1, 3, -1, 1, Q("25 mm")))
pocket2 = body.newObject("PartDesign::Pocket", "Pocket001")
pocket2.Profile = sketch5
pocket2.Length = 139
pocket2.Reversed = True

# Sketch on XZ plane
sketch6 = body.newObject("Sketcher::SketchObject", "Sketch005")
sketch6.AttachmentSupport = (doc.getObject("XZ_Plane"), [""])
sketch6.MapMode = "FlatFace"
sketch6.addGeometry(Part.Circle(V(-11, -145, 0), V(0, 0, 1), 2), False)
sketch6.addGeometry(Part.Circle(V(-11, -55, 0), V(0, 0, 1), 2), False)
sketch6.addConstraint(Sketcher.Constraint("Equal", 0, 1))
sketch6.addConstraint(Sketcher.Constraint("Vertical", 0, 3, 1, 3))
sketch6.addConstraint(Sketcher.Constraint("Diameter", 0, Q("4 mm")))
sketch6.addConstraint(Sketcher.Constraint("DistanceX", 0, 3, -1, 1, Q("11 mm")))
sketch6.addConstraint(Sketcher.Constraint("DistanceY", 0, 3, -1, 1, Q("145 mm")))
sketch6.addConstraint(Sketcher.Constraint("DistanceY", 1, 3, -1, 1, Q("55 mm")))
pocket3 = body.newObject("PartDesign::Pocket", "Pocket002")
pocket3.Profile = sketch6
pocket3.Length = 139
pocket3.Reversed = True

# Sketch on XZ plane
sketch7 = body.newObject("Sketcher::SketchObject", "Sketch006")
sketch7.AttachmentSupport = (doc.getObject("XZ_Plane"), [""])
sketch7.MapMode = "FlatFace"
sketch7.addGeometry(Part.Circle(V(-11, -40, 0), V(0, 0, 1), 2), False)
sketch7.addGeometry(Part.Circle(V(-11, -25, 0), V(0, 0, 1), 2), False)
sketch7.addConstraint(Sketcher.Constraint("Equal", 0, 1))
sketch7.addConstraint(Sketcher.Constraint("Vertical", 0, 3, 1, 3))
sketch7.addConstraint(Sketcher.Constraint("Diameter", 0, Q("4 mm")))
sketch7.addConstraint(Sketcher.Constraint("DistanceX", 0, 3, -1, 1, Q("11 mm")))
sketch7.addConstraint(Sketcher.Constraint("DistanceY", 0, 3, -1, 1, Q("40 mm")))
sketch7.addConstraint(Sketcher.Constraint("DistanceY", 1, 3, -1, 1, Q("25 mm")))
pad4 = body.newObject("PartDesign::Pad", "Pad003")
pad4.Profile = sketch7
pad4.Length = 78

# Sketch on XZ plane
sketch8 = body.newObject("Sketcher::SketchObject", "Sketch007")
sketch8.AttachmentSupport = (doc.getObject("XZ_Plane"), [""])
sketch8.MapMode = "FlatFace"
sketch8.addGeometry(Part.Circle(V(-11, -27.5, 0), V(0, 0, 1), 2), False)
sketch8.addGeometry(Part.Circle(V(-11, -12.5, 0), V(0, 0, 1), 2), False)
sketch8.addConstraint(Sketcher.Constraint("Equal", 0, 1))
sketch8.addConstraint(Sketcher.Constraint("Vertical", 0, 3, 1, 3))
sketch8.addConstraint(Sketcher.Constraint("Diameter", 0, Q("4 mm")))
sketch8.addConstraint(Sketcher.Constraint("DistanceX", 0, 3, -1, 1, Q("11 mm")))
sketch8.addConstraint(Sketcher.Constraint("DistanceY", 0, 3, 1, 3, Q("15 mm")))
sketch8.addConstraint(Sketcher.Constraint("DistanceY", 0, 3, -1, 1, Q("27.5 mm")))
pocket4 = body.newObject("PartDesign::Pocket", "Pocket003")
pocket4.Profile = sketch8
pocket4.Length = 117
pocket4.Reversed = True

doc.recompute()
